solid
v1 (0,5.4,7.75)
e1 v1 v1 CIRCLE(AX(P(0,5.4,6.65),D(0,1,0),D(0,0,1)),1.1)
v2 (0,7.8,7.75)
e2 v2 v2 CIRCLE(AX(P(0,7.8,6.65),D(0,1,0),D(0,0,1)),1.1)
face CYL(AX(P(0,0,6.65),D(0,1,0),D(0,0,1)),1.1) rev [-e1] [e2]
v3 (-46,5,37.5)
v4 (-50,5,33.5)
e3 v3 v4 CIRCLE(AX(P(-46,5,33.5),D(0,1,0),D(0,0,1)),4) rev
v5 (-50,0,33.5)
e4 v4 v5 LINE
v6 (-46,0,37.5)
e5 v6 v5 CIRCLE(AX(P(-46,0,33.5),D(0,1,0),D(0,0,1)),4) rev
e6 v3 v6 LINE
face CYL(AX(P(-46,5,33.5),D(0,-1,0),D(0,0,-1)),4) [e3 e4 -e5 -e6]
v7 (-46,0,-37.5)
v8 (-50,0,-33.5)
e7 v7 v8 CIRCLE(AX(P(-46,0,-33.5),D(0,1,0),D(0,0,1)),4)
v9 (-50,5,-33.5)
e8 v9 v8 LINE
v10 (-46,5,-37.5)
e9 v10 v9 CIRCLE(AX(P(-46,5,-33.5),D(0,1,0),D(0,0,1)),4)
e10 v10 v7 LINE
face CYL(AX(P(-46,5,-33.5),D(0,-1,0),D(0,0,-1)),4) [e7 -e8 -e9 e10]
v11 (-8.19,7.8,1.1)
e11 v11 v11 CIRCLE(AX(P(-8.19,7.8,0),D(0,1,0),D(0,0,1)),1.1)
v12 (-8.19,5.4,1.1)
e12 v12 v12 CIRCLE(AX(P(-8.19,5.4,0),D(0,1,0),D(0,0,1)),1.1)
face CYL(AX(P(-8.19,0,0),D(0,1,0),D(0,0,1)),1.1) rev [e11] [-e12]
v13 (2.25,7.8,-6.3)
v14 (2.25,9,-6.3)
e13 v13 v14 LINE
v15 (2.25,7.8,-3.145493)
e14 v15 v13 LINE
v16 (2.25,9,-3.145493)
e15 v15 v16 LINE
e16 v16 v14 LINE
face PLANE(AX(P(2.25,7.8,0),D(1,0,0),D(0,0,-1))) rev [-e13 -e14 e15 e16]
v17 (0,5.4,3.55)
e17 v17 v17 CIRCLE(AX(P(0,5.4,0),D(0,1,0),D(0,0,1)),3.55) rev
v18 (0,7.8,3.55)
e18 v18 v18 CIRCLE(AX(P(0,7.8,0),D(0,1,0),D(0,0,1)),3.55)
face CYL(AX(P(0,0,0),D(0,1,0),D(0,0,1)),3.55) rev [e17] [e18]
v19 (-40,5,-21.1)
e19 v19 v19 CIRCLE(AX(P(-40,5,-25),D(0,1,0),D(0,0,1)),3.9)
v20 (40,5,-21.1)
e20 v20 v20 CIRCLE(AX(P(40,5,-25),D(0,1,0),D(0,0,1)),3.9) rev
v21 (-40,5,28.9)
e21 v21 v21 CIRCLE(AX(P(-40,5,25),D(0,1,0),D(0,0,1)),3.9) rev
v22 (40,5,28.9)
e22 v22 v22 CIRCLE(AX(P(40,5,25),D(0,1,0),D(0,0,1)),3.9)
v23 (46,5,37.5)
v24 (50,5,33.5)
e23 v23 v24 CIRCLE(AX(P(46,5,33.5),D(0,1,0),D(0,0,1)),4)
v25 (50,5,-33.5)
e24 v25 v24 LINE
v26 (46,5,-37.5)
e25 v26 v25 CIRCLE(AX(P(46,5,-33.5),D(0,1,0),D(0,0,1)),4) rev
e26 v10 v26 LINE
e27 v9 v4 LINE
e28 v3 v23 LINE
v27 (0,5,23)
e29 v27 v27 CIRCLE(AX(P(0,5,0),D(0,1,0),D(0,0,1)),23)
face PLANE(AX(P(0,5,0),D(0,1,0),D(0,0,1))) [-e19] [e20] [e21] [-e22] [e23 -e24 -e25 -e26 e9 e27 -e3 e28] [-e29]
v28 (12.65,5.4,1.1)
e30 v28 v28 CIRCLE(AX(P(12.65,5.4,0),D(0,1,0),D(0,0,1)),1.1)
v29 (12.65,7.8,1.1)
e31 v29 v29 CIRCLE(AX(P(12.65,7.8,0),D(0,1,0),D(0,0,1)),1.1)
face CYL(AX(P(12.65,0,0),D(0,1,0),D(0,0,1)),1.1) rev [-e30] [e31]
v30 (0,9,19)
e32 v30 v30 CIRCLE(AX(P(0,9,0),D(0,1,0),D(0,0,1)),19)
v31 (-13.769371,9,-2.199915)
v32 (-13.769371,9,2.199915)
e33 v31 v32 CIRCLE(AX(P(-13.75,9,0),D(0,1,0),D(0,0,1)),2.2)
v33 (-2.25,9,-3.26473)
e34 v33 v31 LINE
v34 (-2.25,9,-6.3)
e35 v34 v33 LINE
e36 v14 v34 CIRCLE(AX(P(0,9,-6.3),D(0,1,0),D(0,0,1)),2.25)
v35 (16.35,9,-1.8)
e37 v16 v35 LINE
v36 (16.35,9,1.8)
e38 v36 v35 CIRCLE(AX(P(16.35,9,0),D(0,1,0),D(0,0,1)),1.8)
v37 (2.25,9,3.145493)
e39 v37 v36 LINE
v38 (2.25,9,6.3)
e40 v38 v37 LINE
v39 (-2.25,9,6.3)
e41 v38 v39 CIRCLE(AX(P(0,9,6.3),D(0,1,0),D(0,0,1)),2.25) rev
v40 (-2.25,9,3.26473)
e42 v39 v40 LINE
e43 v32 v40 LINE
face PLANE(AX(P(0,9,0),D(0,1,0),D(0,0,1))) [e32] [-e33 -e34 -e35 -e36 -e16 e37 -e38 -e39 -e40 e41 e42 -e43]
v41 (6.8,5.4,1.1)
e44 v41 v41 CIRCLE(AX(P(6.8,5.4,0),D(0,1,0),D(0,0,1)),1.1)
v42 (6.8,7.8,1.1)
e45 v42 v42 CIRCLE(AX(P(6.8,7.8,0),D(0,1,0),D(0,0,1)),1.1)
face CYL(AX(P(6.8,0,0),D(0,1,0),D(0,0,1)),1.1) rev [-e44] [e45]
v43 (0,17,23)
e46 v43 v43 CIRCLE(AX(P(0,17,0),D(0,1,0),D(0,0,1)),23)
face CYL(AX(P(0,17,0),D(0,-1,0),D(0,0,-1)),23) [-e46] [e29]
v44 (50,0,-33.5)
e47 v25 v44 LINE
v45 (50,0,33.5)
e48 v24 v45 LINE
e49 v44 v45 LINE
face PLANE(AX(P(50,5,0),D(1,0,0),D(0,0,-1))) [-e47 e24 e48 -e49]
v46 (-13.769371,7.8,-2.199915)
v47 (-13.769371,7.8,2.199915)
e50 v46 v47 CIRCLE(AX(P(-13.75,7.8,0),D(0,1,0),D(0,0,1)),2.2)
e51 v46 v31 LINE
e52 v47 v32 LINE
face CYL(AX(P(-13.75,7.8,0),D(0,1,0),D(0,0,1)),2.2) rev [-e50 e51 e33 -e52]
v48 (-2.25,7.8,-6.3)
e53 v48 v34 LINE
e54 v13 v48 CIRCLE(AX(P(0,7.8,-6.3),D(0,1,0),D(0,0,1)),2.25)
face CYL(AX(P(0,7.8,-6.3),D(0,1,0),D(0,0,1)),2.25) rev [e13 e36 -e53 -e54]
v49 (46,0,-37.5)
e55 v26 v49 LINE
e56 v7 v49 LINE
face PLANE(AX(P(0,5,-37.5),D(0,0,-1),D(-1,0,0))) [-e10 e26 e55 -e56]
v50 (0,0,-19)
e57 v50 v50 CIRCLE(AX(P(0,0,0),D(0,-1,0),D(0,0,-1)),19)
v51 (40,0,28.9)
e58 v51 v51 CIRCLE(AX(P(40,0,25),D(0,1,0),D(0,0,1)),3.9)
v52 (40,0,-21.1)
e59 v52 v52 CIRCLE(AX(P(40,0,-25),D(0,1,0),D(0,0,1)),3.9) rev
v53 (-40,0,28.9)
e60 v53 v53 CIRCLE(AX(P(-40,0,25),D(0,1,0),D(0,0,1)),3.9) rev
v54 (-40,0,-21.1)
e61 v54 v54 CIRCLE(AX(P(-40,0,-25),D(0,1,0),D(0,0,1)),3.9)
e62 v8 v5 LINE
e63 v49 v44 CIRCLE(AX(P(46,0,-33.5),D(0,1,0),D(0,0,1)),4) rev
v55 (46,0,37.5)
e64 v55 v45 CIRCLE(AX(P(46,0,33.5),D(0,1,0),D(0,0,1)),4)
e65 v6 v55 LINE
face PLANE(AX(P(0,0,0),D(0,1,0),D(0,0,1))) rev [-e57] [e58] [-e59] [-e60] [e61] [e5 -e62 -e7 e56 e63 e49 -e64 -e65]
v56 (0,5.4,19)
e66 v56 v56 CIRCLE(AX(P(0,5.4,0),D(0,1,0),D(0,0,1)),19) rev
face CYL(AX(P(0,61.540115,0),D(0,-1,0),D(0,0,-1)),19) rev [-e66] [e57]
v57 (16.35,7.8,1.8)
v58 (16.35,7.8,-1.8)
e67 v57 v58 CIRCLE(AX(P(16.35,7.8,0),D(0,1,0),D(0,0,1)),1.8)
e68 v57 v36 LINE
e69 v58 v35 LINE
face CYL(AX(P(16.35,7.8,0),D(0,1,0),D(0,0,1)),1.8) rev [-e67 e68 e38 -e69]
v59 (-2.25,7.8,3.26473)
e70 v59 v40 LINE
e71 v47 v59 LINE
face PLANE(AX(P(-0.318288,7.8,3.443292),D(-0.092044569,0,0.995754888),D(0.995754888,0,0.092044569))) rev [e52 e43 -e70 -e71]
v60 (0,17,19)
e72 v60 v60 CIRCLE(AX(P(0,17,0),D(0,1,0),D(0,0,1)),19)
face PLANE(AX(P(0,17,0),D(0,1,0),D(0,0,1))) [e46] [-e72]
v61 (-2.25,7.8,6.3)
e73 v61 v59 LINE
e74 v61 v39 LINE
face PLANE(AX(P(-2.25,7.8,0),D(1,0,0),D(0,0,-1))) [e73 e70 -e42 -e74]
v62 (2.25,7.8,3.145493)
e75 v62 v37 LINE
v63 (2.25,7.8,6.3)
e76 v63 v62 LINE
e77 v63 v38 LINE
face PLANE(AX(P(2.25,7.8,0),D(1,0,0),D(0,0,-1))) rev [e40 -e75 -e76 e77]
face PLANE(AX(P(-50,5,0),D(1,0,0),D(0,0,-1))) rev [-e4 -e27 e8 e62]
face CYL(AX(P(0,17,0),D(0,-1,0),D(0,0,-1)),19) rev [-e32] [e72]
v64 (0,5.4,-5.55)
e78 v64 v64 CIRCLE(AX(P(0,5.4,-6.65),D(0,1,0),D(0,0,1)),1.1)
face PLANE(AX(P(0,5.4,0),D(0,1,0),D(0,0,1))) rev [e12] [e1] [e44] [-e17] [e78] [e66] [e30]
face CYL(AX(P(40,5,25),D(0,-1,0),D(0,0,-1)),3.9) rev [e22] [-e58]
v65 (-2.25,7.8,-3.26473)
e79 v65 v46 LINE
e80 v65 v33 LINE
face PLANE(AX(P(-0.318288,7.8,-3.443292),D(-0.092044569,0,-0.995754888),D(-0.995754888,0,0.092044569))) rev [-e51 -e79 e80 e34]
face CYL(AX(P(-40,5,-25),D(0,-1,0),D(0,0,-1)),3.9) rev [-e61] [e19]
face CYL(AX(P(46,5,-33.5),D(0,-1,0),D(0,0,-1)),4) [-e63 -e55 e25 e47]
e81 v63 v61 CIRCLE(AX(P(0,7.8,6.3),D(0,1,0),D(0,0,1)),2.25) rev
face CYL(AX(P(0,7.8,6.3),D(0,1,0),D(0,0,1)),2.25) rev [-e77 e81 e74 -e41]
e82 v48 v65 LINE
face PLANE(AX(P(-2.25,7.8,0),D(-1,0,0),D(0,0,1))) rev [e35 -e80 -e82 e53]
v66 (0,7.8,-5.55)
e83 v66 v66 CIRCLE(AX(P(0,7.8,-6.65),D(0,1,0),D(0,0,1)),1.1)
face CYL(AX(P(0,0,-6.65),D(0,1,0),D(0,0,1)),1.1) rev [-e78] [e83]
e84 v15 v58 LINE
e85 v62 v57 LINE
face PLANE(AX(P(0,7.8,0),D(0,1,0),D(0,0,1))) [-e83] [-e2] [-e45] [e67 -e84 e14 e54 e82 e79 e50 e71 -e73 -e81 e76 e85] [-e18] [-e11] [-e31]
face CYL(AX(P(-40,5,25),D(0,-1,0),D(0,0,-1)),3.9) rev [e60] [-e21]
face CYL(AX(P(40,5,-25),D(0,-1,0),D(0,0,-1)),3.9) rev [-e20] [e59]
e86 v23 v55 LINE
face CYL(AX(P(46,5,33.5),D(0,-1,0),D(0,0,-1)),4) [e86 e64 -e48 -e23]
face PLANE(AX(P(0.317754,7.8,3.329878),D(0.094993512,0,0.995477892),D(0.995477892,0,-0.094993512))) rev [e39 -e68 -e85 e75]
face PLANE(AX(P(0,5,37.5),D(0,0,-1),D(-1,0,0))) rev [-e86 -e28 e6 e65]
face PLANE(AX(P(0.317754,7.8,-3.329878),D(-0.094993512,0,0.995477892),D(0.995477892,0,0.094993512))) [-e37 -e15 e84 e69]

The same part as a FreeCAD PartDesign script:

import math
import FreeCAD as App
import Part
import Sketcher
from FreeCAD import Vector
Q = App.Units.Quantity

doc = App.newDocument("Part")
body = doc.addObject("PartDesign::Body", "Body")

sketch1 = body.newObject("Sketcher::SketchObject", "Sketch")
sketch1.AttachmentSupport = (doc.getObject("XZ_Plane"), [""])
sketch1.MapMode = "FlatFace"
sketch1.addGeometry(Part.LineSegment(Vector(46, -37.5, 0), Vector(-46, -37.5, 0)), False)
sketch1.addGeometry(Part.ArcOfCircle(Part.Circle(Vector(-46, -33.5, 0), Vector(0, 0, 1), 4), math.radians(180), math.radians(270)), False)
sketch1.addGeometry(Part.LineSegment(Vector(-50, -33.5, 0), Vector(-50, 33.5, 0)), False)
sketch1.addGeometry(Part.ArcOfCircle(Part.Circle(Vector(-46, 33.5, 0), Vector(0, 0, 1), 4), math.radians(90), math.radians(180)), False)
sketch1.addGeometry(Part.LineSegment(Vector(-46, 37.5, 0), Vector(46, 37.5, 0)), False)
sketch1.addGeometry(Part.ArcOfCircle(Part.Circle(Vector(46, 33.5, 0), Vector(0, 0, 1), 4), math.radians(0), math.radians(90)), False)
sketch1.addGeometry(Part.LineSegment(Vector(50, 33.5, 0), Vector(50, -33.5, 0)), False)
sketch1.addGeometry(Part.ArcOfCircle(Part.Circle(Vector(46, -33.5, 0), Vector(0, 0, 1), 4), math.radians(-90), math.radians(0)), False)
sketch1.addGeometry(Part.Circle(Vector(-40, 25, 0), Vector(0, 0, 1), 3.9), False)
sketch1.addGeometry(Part.Circle(Vector(40, 25, 0), Vector(0, 0, 1), 3.9), False)
sketch1.addGeometry(Part.Circle(Vector(-40, -25, 0), Vector(0, 0, 1), 3.9), False)
sketch1.addGeometry(Part.Circle(Vector(40, -25, 0), Vector(0, 0, 1), 3.9), False)
sketch1.addConstraint(Sketcher.Constraint("Tangent", 0, 2, 1, 2))
sketch1.addConstraint(Sketcher.Constraint("Tangent", 1, 1, 2, 1))
sketch1.addConstraint(Sketcher.Constraint("Tangent", 2, 2, 3, 2))
sketch1.addConstraint(Sketcher.Constraint("Tangent", 3, 1, 4, 1))
sketch1.addConstraint(Sketcher.Constraint("Tangent", 4, 2, 5, 2))
sketch1.addConstraint(Sketcher.Constraint("Tangent", 5, 1, 6, 1))
sketch1.addConstraint(Sketcher.Constraint("Tangent", 6, 2, 7, 2))
sketch1.addConstraint(Sketcher.Constraint("Tangent", 7, 1, 0, 1))
sketch1.addConstraint(Sketcher.Constraint("Horizontal", 0))
sketch1.addConstraint(Sketcher.Constraint("Vertical", 2))
sketch1.addConstraint(Sketcher.Constraint("Horizontal", 4))
sketch1.addConstraint(Sketcher.Constraint("Vertical", 6))
sketch1.addConstraint(Sketcher.Constraint("Equal", 1, 3))
sketch1.addConstraint(Sketcher.Constraint("Equal", 3, 5))
sketch1.addConstraint(Sketcher.Constraint("Equal", 5, 7))
sketch1.addConstraint(Sketcher.Constraint("Equal", 8, 9))
sketch1.addConstraint(Sketcher.Constraint("Equal", 9, 10))
sketch1.addConstraint(Sketcher.Constraint("Equal", 10, 11))
sketch1.addConstraint(Sketcher.Constraint("Symmetric", 1, 3, 5, 3, -1, 1))
sketch1.addConstraint(Sketcher.Constraint("Symmetric", 9, 3, 10, 3, -1, 1))
sketch1.addConstraint(Sketcher.Constraint("Symmetric", 8, 3, 11, 3, -1, 1))
sketch1.addConstraint(Sketcher.Constraint("Symmetric", 8, 3, 9, 3, -2))
sketch1.addConstraint(Sketcher.Constraint("Radius", 1, Q("4 mm")))
sketch1.addConstraint(Sketcher.Constraint("Diameter", 8, Q("7.8 mm")))
sketch1.addConstraint(Sketcher.Constraint("DistanceX", 0, 2, 0, 1, Q("92 mm")))
sketch1.addConstraint(Sketcher.Constraint("DistanceY", 2, 1, 2, 2, Q("67 mm")))
sketch1.addConstraint(Sketcher.Constraint("DistanceX", 8, 3, -1, 1, Q("40 mm")))
sketch1.addConstraint(Sketcher.Constraint("DistanceY", -1, 1, 8, 3, Q("25 mm")))
pad1 = body.newObject("PartDesign::Pad", "Pad")
pad1.Profile = sketch1
pad1.Length = 5
pad1.Reversed = True

sketch2 = body.newObject("Sketcher::SketchObject", "Sketch001")
sketch2.AttachmentSupport = (doc.getObject("XZ_Plane"), [""])
sketch2.MapMode = "FlatFace"
sketch2.AttachmentOffset = App.Placement(Vector(0, 0, -5), App.Rotation())
sketch2.addGeometry(Part.Circle(Vector(0, 0, 0), Vector(0, 0, 1), 23), False)
sketch2.addGeometry(Part.Circle(Vector(0, 0, 0), Vector(0, 0, 1), 19), False)
sketch2.addConstraint(Sketcher.Constraint("Coincident", 0, 3, -1, 1))
sketch2.addConstraint(Sketcher.Constraint("Coincident", 1, 3, -1, 1))
sketch2.addConstraint(Sketcher.Constraint("Diameter", 0, Q("46 mm")))
sketch2.addConstraint(Sketcher.Constraint("Diameter", 1, Q("38 mm")))
pad2 = body.newObject("PartDesign::Pad", "Pad001")
pad2.Profile = sketch2
pad2.Length = 12
pad2.Reversed = True

sketch3 = body.newObject("Sketcher::SketchObject", "Sketch002")
sketch3.AttachmentSupport = (doc.getObject("XZ_Plane"), [""])
sketch3.MapMode = "FlatFace"
sketch3.AttachmentOffset = App.Placement(Vector(0, 0, -5), App.Rotation())
sketch3.addGeometry(Part.Circle(Vector(0, 0, 0), Vector(0, 0, 1), 19), False)
sketch3.addConstraint(Sketcher.Constraint("Coincident", 0, 3, -1, 1))
sketch3.addConstraint(Sketcher.Constraint("Diameter", 0, Q("38 mm")))
pad3 = body.newObject("PartDesign::Pad", "Pad002")
pad3.Profile = sketch3
pad3.Length = 4
pad3.Reversed = True

sketch4 = body.newObject("Sketcher::SketchObject", "Sketch003")
sketch4.AttachmentSupport = (doc.getObject("XZ_Plane"), [""])
sketch4.MapMode = "FlatFace"
sketch4.AttachmentOffset = App.Placement(Vector(0, 0, -9), App.Rotation())
sketch4.addGeometry(Part.LineSegment(Vector(2.2, 6.3, 0), Vector(2.2, 3.1, 0)), False)
sketch4.addGeometry(Part.LineSegment(Vector(2.2, 3.1, 0), Vector(16.4, 1.8, 0)), False)
sketch4.addGeometry(Part.ArcOfCircle(Part.Circle(Vector(16.4, 0, 0), Vector(0, 0, 1), 1.8), math.radians(-90), math.radians(90)), False)
sketch4.addGeometry(Part.LineSegment(Vector(16.4, -1.8, 0), Vector(2.2, -3.1, 0)), False)
sketch4.addGeometry(Part.LineSegment(Vector(2.2, -3.1, 0), Vector(2.2, -6.3, 0)), False)
sketch4.addGeometry(Part.ArcOfCircle(Part.Circle(Vector(0, -6.3, 0), Vector(0, 0, 1), 2.2), math.radians(180), math.radians(360)), False)
sketch4.addGeometry(Part.LineSegment(Vector(-2.2, -6.3, 0), Vector(-2.2, -3.3, 0)), False)
sketch4.addGeometry(Part.LineSegment(Vector(-2.2, -3.3, 0), Vector(-13.8, -2.2, 0)), False)
sketch4.addGeometry(Part.ArcOfCircle(Part.Circle(Vector(-13.8, 0, 0), Vector(0, 0, 1), 2.2), math.radians(91), math.radians(269)), False)
sketch4.addGeometry(Part.LineSegment(Vector(-13.8, 2.2, 0), Vector(-2.2, 3.3, 0)), False)
sketch4.addGeometry(Part.LineSegment(Vector(-2.2, 3.3, 0), Vector(-2.2, 6.3, 0)), False)
sketch4.addGeometry(Part.ArcOfCircle(Part.Circle(Vector(0, 6.3, 0), Vector(0, 0, 1), 2.2), math.radians(0), math.radians(180)), False)
sketch4.addConstraint(Sketcher.Constraint("Coincident", 0, 2, 1, 1))
sketch4.addConstraint(Sketcher.Constraint("Coincident", 1, 2, 2, 2))
sketch4.addConstraint(Sketcher.Constraint("Coincident", 2, 1, 3, 1))
sketch4.addConstraint(Sketcher.Constraint("Coincident", 3, 2, 4, 1))
sketch4.addConstraint(Sketcher.Constraint("Tangent", 4, 2, 5, 2))
sketch4.addConstraint(Sketcher.Constraint("Tangent", 5, 1, 6, 1))
sketch4.addConstraint(Sketcher.Constraint("Coincident", 6, 2, 7, 1))
sketch4.addConstraint(Sketcher.Constraint("Coincident", 7, 2, 8, 2))
sketch4.addConstraint(Sketcher.Constraint("Coincident", 8, 1, 9, 1))
sketch4.addConstraint(Sketcher.Constraint("Coincident", 9, 2, 10, 1))
sketch4.addConstraint(Sketcher.Constraint("Tangent", 10, 2, 11, 2))
sketch4.addConstraint(Sketcher.Constraint("Tangent", 11, 1, 0, 1))
sketch4.addConstraint(Sketcher.Constraint("Vertical", 0))
sketch4.addConstraint(Sketcher.Constraint("Vertical", 4))
sketch4.addConstraint(Sketcher.Constraint("Vertical", 6))
sketch4.addConstraint(Sketcher.Constraint("Vertical", 10))
sketch4.addConstraint(Sketcher.Constraint("Equal", 5, 11))
sketch4.addConstraint(Sketcher.Constraint("Symmetric", 5, 3, 11, 3, -1, 1))
sketch4.addConstraint(Sketcher.Constraint("Symmetric", 1, 2, 2, 1, -1))
sketch4.addConstraint(Sketcher.Constraint("Symmetric", 0, 2, 3, 2, -1))
sketch4.addConstraint(Sketcher.Constraint("Symmetric", 7, 2, 8, 1, -1))
sketch4.addConstraint(Sketcher.Constraint("Vertical", 2, 3, 1, 2))
sketch4.addConstraint(Sketcher.Constraint("Equal", 6, 10))
sketch4.addConstraint(Sketcher.Constraint("Radius", 2, Q("1.8 mm")))
sketch4.addConstraint(Sketcher.Constraint("Radius", 8, Q("2.2 mm")))
sketch4.addConstraint(Sketcher.Constraint("Radius", 5, Q("2.25 mm")))
sketch4.addConstraint(Sketcher.Constraint("DistanceX", 8, 3, 0, 2, Q("16 mm")))
sketch4.addConstraint(Sketcher.Constraint("DistanceY", 5, 3, -1, 1, Q("6.3 mm")))
sketch4.addConstraint(Sketcher.Constraint("DistanceX", 8, 3, 2, 3, Q("30.1 mm")))
sketch4.addConstraint(Sketcher.Constraint("DistanceY", 6, 1, 6, 2, Q("3.03527 mm")))
sketch4.addConstraint(Sketcher.Constraint("Distance", 1, Q("14.164051 mm")))
sketch4.addConstraint(Sketcher.Constraint("Distance", 7, Q("11.56848 mm")))
pocket1 = body.newObject("PartDesign::Pocket", "Pocket")
pocket1.Profile = sketch4
pocket1.Length = 1.2
pocket1.Reversed = True

sketch5 = body.newObject("Sketcher::SketchObject", "Sketch004")
sketch5.AttachmentSupport = (doc.getObject("XZ_Plane"), [""])
sketch5.MapMode = "FlatFace"
sketch5.AttachmentOffset = App.Placement(Vector(0, 0, -7.8), App.Rotation())
sketch5.addGeometry(Part.Circle(Vector(0, 0, 0), Vector(0, 0, 1), 3.5), False)
sketch5.addConstraint(Sketcher.Constraint("Coincident", 0, 3, -1, 1))
sketch5.addConstraint(Sketcher.Constraint("Diameter", 0, Q("7.1 mm")))
pocket2 = body.newObject("PartDesign::Pocket", "Pocket001")
pocket2.Profile = sketch5
pocket2.Type = "ThroughAll"
pocket2.Reversed = True

sketch6 = body.newObject("Sketcher::SketchObject", "Sketch005")
sketch6.AttachmentSupport = (doc.getObject("XZ_Plane"), [""])
sketch6.MapMode = "FlatFace"
sketch6.addGeometry(Part.Circle(Vector(0, 0, 0), Vector(0, 0, 1), 19), False)
sketch6.addConstraint(Sketcher.Constraint("Coincident", 0, 3, -1, 1))
sketch6.addConstraint(Sketcher.Constraint("Diameter", 0, Q("38 mm")))
pocket3 = body.newObject("PartDesign::Pocket", "Pocket002")
pocket3.Profile = sketch6
pocket3.Length = 5.4

sketch7 = body.newObject("Sketcher::SketchObject", "Sketch006")
sketch7.AttachmentSupport = (doc.getObject("XZ_Plane"), [""])
sketch7.MapMode = "FlatFace"
sketch7.AttachmentOffset = App.Placement(Vector(0, 0, -7.8), App.Rotation())
sketch7.addGeometry(Part.Circle(Vector(0, -6.7, 0), Vector(0, 0, 1), 1.1), False)
sketch7.addGeometry(Part.Circle(Vector(0, 6.7, 0), Vector(0, 0, 1), 1.1), False)
sketch7.addGeometry(Part.Circle(Vector(-8.2, 0, 0), Vector(0, 0, 1), 1.1), False)
sketch7.addGeometry(Part.Circle(Vector(6.8, 0, 0), Vector(0, 0, 1), 1.1), False)
sketch7.addGeometry(Part.Circle(Vector(12.7, 0, 0), Vector(0, 0, 1), 1.1), False)
sketch7.addConstraint(Sketcher.Constraint("Equal", 0, 1))
sketch7.addConstraint(Sketcher.Constraint("Equal", 1, 2))
sketch7.addConstraint(Sketcher.Constraint("Equal", 2, 3))
sketch7.addConstraint(Sketcher.Constraint("Equal", 3, 4))
sketch7.addConstraint(Sketcher.Constraint("Symmetric", 0, 3, 1, 3, -1, 1))
sketch7.addConstraint(Sketcher.Constraint("PointOnObject", 0, 3, -2))
sketch7.addConstraint(Sketcher.Constraint("PointOnObject", 2, 3, -1))
sketch7.addConstraint(Sketcher.Constraint("PointOnObject", 3, 3, -1))
sketch7.addConstraint(Sketcher.Constraint("PointOnObject", 4, 3, -1))
sketch7.addConstraint(Sketcher.Constraint("Diameter", 0, Q("2.2 mm")))
sketch7.addConstraint(Sketcher.Constraint("DistanceX", -1, 1, 3, 3, Q("6.8 mm")))
sketch7.addConstraint(Sketcher.Constraint("DistanceY", 0, 3, 1, 3, Q("13.3 mm")))
sketch7.addConstraint(Sketcher.Constraint("DistanceX", 2, 3, -1, 1, Q("8.19 mm")))
sketch7.addConstraint(Sketcher.Constraint("DistanceX", -1, 1, 4, 3, Q("12.65 mm")))
pocket4 = body.newObject("PartDesign::Pocket", "Pocket003")
pocket4.Profile = sketch7
pocket4.Length = 64.173491
pocket4.Reversed = True

doc.recompute()
